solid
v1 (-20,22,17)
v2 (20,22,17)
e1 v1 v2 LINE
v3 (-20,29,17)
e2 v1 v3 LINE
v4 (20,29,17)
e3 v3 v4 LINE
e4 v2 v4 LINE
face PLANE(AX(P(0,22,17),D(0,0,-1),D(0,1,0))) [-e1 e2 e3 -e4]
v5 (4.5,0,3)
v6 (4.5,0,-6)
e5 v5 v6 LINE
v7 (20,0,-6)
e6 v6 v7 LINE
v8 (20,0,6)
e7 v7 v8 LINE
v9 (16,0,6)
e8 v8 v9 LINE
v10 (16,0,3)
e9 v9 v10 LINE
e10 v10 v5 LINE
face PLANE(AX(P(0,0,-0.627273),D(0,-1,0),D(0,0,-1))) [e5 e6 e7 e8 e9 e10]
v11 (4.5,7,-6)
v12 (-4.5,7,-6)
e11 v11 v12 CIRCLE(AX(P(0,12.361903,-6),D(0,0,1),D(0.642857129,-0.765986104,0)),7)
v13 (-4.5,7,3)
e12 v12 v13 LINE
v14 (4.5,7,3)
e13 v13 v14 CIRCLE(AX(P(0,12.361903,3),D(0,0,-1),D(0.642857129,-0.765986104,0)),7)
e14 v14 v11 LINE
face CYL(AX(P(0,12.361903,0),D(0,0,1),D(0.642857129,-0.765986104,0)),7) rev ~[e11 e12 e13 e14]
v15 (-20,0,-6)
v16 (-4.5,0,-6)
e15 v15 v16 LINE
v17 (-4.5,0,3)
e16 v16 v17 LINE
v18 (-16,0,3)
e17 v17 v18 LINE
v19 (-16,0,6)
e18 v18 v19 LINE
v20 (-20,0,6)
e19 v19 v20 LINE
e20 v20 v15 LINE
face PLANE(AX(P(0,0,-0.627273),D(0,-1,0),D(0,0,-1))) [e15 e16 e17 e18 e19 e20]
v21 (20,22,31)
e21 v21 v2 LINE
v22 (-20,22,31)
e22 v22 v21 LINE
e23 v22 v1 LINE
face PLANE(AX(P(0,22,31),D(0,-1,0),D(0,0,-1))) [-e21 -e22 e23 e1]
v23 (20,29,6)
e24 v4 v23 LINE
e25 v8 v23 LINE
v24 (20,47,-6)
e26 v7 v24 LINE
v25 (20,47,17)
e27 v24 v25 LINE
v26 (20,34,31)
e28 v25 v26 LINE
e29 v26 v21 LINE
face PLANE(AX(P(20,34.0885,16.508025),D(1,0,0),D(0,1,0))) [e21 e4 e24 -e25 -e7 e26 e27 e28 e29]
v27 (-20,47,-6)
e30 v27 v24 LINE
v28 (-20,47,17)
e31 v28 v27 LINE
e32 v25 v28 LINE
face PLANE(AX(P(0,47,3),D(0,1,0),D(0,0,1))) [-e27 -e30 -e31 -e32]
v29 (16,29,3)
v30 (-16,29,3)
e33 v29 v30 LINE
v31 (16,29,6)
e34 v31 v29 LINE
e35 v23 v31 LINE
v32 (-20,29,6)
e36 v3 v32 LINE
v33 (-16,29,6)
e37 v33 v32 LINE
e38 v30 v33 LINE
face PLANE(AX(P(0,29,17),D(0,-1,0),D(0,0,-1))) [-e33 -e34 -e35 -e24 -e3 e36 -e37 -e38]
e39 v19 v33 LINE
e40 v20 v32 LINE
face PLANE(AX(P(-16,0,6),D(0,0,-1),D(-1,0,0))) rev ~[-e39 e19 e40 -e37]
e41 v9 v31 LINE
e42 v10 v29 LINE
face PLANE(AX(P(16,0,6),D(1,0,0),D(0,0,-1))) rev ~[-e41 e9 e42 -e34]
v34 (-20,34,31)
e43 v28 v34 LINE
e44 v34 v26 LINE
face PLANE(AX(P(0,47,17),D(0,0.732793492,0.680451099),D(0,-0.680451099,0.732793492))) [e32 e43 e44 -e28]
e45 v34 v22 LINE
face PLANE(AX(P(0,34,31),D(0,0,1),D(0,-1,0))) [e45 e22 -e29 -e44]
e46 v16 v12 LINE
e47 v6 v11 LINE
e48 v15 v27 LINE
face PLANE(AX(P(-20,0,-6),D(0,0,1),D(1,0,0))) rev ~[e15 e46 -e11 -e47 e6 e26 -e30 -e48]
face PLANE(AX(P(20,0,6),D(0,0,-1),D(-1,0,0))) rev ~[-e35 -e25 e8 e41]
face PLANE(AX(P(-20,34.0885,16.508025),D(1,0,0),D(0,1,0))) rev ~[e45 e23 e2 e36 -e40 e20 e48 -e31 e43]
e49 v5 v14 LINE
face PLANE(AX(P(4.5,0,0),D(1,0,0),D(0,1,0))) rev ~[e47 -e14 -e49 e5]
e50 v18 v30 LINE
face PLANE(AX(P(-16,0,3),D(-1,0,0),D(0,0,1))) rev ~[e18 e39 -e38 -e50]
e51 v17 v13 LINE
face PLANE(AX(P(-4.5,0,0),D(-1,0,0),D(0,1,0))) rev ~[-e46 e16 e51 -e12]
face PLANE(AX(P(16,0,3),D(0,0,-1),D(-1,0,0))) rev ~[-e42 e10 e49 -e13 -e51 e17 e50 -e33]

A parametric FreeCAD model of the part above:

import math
import FreeCAD as App
import Part
import Sketcher

V = App.Vector

doc = App.newDocument("Part")
params = doc.addObject("Spreadsheet::Sheet", "Params")
for row, (alias, value) in enumerate([
    ("sketch1_width", "40 mm"),
    ("sketch1_width2", "4 mm"),
    ("sketch1_height", "12 mm"),
    ("sketch1_height2", "3 mm"),
    ("sketch2_height", "47 mm"),
    ("sketch3_width", "12 mm"),
    ("sketch3_width2", "7 mm"),
    ("sketch3_width3", "18 mm"),
    ("sketch3_height", "14 mm"),
    ("pad1_length", "40 mm"),
    ("sketch4_radius", "7 mm"),
    ("sketch4_width", "9 mm"),
    ("sketch4_height", "7 mm"),
], start=1):
    params.set(f"A{row}", alias)
    params.set(f"B{row}", "=" + value)
    params.setAlias(f"B{row}", alias)

body = doc.addObject("PartDesign::Body", "Body")

# Sketch on XZ plane
sketch1 = doc.addObject("Sketcher::SketchObject", "Sketch")
body.addObject(sketch1)
sketch1.AttachmentSupport = (doc.XZ_Plane, [""])
sketch1.MapMode = "FlatFace"
sketch1.addGeometry(Part.LineSegment(V(-20, 6, 0), V(-20, -6, 0)), False)
sketch1.addGeometry(Part.LineSegment(V(-20, -6, 0), V(20, -6, 0)), False)
sketch1.addGeometry(Part.LineSegment(V(20, -6, 0), V(20, 6, 0)), False)
sketch1.addGeometry(Part.LineSegment(V(20, 6, 0), V(16, 6, 0)), False)
sketch1.addGeometry(Part.LineSegment(V(16, 6, 0), V(16, 3, 0)), False)
sketch1.addGeometry(Part.LineSegment(V(16, 3, 0), V(-16, 3, 0)), False)
sketch1.addGeometry(Part.LineSegment(V(-16, 3, 0), V(-16, 6, 0)), False)
sketch1.addGeometry(Part.LineSegment(V(-16, 6, 0), V(-20, 6, 0)), False)
sketch1.addConstraint(Sketcher.Constraint("Coincident", 0, 2, 1, 1))
sketch1.addConstraint(Sketcher.Constraint("Coincident", 1, 2, 2, 1))
sketch1.addConstraint(Sketcher.Constraint("Coincident", 2, 2, 3, 1))
sketch1.addConstraint(Sketcher.Constraint("Coincident", 3, 2, 4, 1))
sketch1.addConstraint(Sketcher.Constraint("Coincident", 4, 2, 5, 1))
sketch1.addConstraint(Sketcher.Constraint("Coincident", 5, 2, 6, 1))
sketch1.addConstraint(Sketcher.Constraint("Coincident", 6, 2, 7, 1))
sketch1.addConstraint(Sketcher.Constraint("Coincident", 7, 2, 0, 1))
sketch1.addConstraint(Sketcher.Constraint("Vertical", 0))
sketch1.addConstraint(Sketcher.Constraint("Horizontal", 1))
sketch1.addConstraint(Sketcher.Constraint("Vertical", 2))
sketch1.addConstraint(Sketcher.Constraint("Horizontal", 3))
sketch1.addConstraint(Sketcher.Constraint("Vertical", 4))
sketch1.addConstraint(Sketcher.Constraint("Horizontal", 5))
sketch1.addConstraint(Sketcher.Constraint("Vertical", 6))
sketch1.addConstraint(Sketcher.Constraint("Horizontal", 7))
sketch1.addConstraint(Sketcher.Constraint("Symmetric", 0, 2, 2, 2, -1, 1))
sketch1.addConstraint(Sketcher.Constraint("Symmetric", 3, 2, 6, 2, -2))
sketch1.addConstraint(Sketcher.Constraint("DistanceX", 1, 1, 1, 2, 40.0))
sketch1.addConstraint(Sketcher.Constraint("DistanceX", 3, 2, 3, 1, 4.0))
sketch1.addConstraint(Sketcher.Constraint("DistanceY", 0, 2, 0, 1, 12.0))
sketch1.addConstraint(Sketcher.Constraint("DistanceY", 4, 2, 4, 1, 3.0))
sketch1.setExpression("Constraints[18]", "Params.sketch1_width")
sketch1.setExpression("Constraints[19]", "Params.sketch1_width2")
sketch1.setExpression("Constraints[20]", "Params.sketch1_height")
sketch1.setExpression("Constraints[21]", "Params.sketch1_height2")

# Sketch on XY plane
sketch2 = doc.addObject("Sketcher::SketchObject", "Sketch001")
body.addObject(sketch2)
sketch2.AttachmentSupport = (doc.XY_Plane, [""])
sketch2.MapMode = "FlatFace"
sketch2.addGeometry(Part.LineSegment(V(0, 0, 0), V(0, 47, 0)), False)
sketch2.addConstraint(Sketcher.Constraint("Vertical", 0))
sketch2.addConstraint(Sketcher.Constraint("Coincident", 0, 1, -1, 1))
sketch2.addConstraint(Sketcher.Constraint("DistanceY", 0, 1, 0, 2, 47.0))
sketch2.setExpression("Constraints[2]", "Params.sketch2_height")
doc.recompute()

additivepipe = doc.addObject("PartDesign::AdditivePipe", "AdditivePipe")
body.addObject(additivepipe)
additivepipe.Profile = sketch1
additivepipe.Spine = (sketch2, ["Edge1"])

# Sketch on YZ plane
sketch3 = doc.addObject("Sketcher::SketchObject", "Sketch002")
body.addObject(sketch3)
sketch3.AttachmentSupport = (doc.YZ_Plane, [""])
sketch3.MapMode = "FlatFace"
sketch3.addGeometry(Part.LineSegment(V(47, 17, 0), V(34, 31, 0)), False)
sketch3.addGeometry(Part.LineSegment(V(34, 31, 0), V(22, 31, 0)), False)
sketch3.addGeometry(Part.LineSegment(V(22, 31, 0), V(22, 17, 0)), False)
sketch3.addGeometry(Part.LineSegment(V(22, 17, 0), V(29, 17, 0)), False)
sketch3.addGeometry(Part.LineSegment(V(29, 17, 0), V(29, 3, 0)), False)
sketch3.addGeometry(Part.LineSegment(V(29, 3, 0), V(47, 3, 0)), False)
sketch3.addGeometry(Part.LineSegment(V(47, 3, 0), V(47, 17, 0)), False)
sketch3.addConstraint(Sketcher.Constraint("Coincident", 0, 2, 1, 1))
sketch3.addConstraint(Sketcher.Constraint("Coincident", 1, 2, 2, 1))
sketch3.addConstraint(Sketcher.Constraint("Coincident", 2, 2, 3, 1))
sketch3.addConstraint(Sketcher.Constraint("Coincident", 3, 2, 4, 1))
sketch3.addConstraint(Sketcher.Constraint("Coincident", 4, 2, 5, 1))
sketch3.addConstraint(Sketcher.Constraint("Coincident", 5, 2, 6, 1))
sketch3.addConstraint(Sketcher.Constraint("Coincident", 6, 2, 0, 1))
sketch3.addConstraint(Sketcher.Constraint("Horizontal", 1))
sketch3.addConstraint(Sketcher.Constraint("Vertical", 2))
sketch3.addConstraint(Sketcher.Constraint("Horizontal", 3))
sketch3.addConstraint(Sketcher.Constraint("Vertical", 4))
sketch3.addConstraint(Sketcher.Constraint("Horizontal", 5))
sketch3.addConstraint(Sketcher.Constraint("Vertical", 6))
sketch3.addConstraint(Sketcher.Constraint("Horizontal", 3, 2, 6, 2))
sketch3.addConstraint(Sketcher.Constraint("Equal", 2, 4))
sketch3.addConstraint(Sketcher.Constraint("DistanceX", 1, 2, 1, 1, 12.0))
sketch3.addConstraint(Sketcher.Constraint("DistanceX", 3, 1, 3, 2, 7.0))
sketch3.addConstraint(Sketcher.Constraint("DistanceX", 5, 1, 5, 2, 18.0))
sketch3.addConstraint(Sketcher.Constraint("DistanceY", 2, 2, 2, 1, 14.0))
sketch3.addConstraint(Sketcher.Constraint("DistanceX", -1, 1, 0, 2, 34.0))
sketch3.addConstraint(Sketcher.Constraint("DistanceY", -1, 1, 0, 2, 31.0))
sketch3.setExpression("Constraints[15]", "Params.sketch3_width")
sketch3.setExpression("Constraints[16]", "Params.sketch3_width2")
sketch3.setExpression("Constraints[17]", "Params.sketch3_width3")
sketch3.setExpression("Constraints[18]", "Params.sketch3_height")
pad1 = doc.addObject("PartDesign::Pad", "Pad")
body.addObject(pad1)
pad1.Profile = sketch3
pad1.setExpression("Length", "Params.pad1_length")
pad1.Midplane = True

# Sketch on XY plane
sketch4 = doc.addObject("Sketcher::SketchObject", "Sketch003")
body.addObject(sketch4)
sketch4.AttachmentSupport = (doc.XY_Plane, [""])
sketch4.MapMode = "FlatFace"
sketch4.addGeometry(Part.LineSegment(V(-4.5, 0, 0), V(4.5, 0, 0)), False)
sketch4.addGeometry(Part.LineSegment(V(4.5, 0, 0), V(4.5, 7, 0)), False)
sketch4.addGeometry(Part.ArcOfCircle(Part.Circle(V(0, 12.361903, 0), V(0, 0, 1), 7), math.radians(-49.9948), math.radians(229.9948)), False)
sketch4.addGeometry(Part.LineSegment(V(-4.5, 7, 0), V(-4.5, 0, 0)), False)
sketch4.addConstraint(Sketcher.Constraint("Coincident", 0, 2, 1, 1))
sketch4.addConstraint(Sketcher.Constraint("Coincident", 1, 2, 2, 1))
sketch4.addConstraint(Sketcher.Constraint("Coincident", 2, 2, 3, 1))
sketch4.addConstraint(Sketcher.Constraint("Coincident", 3, 2, 0, 1))
sketch4.addConstraint(Sketcher.Constraint("Horizontal", 0))
sketch4.addConstraint(Sketcher.Constraint("Vertical", 1))
sketch4.addConstraint(Sketcher.Constraint("Vertical", 3))
sketch4.addConstraint(Sketcher.Constraint("Symmetric", 0, 2, 3, 2, -1, 1))
sketch4.addConstraint(Sketcher.Constraint("PointOnObject", 2, 3, -2))
sketch4.addConstraint(Sketcher.Constraint("Radius", 2, 7.0))
sketch4.addConstraint(Sketcher.Constraint("DistanceX", 0, 1, 0, 2, 9.0))
sketch4.addConstraint(Sketcher.Constraint("DistanceY", 1, 1, 1, 2, 7.0))
sketch4.setExpression("Constraints[9]", "Params.sketch4_radius")
sketch4.setExpression("Constraints[10]", "Params.sketch4_width")
sketch4.setExpression("Constraints[11]", "Params.sketch4_height")
pocket1 = doc.addObject("PartDesign::Pocket", "Pocket")
body.addObject(pocket1)
pocket1.Profile = sketch4
pocket1.Type = "ThroughAll"
pocket1.Midplane = True

doc.recompute()
